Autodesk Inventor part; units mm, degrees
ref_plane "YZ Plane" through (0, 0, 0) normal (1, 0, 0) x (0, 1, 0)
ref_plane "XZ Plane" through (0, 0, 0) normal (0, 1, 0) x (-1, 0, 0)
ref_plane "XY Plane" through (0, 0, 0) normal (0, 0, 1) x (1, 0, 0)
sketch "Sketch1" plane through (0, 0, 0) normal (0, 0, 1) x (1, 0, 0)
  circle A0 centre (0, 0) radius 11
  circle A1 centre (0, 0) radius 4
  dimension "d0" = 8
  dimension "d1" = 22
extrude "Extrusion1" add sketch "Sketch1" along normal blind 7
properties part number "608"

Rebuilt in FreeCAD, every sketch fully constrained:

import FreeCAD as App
import Part
import Sketcher

V = App.Vector
Q = App.Units.Quantity

doc = App.newDocument("Part")
body = doc.addObject("PartDesign::Body", "Body")

# Sketch on XY plane
sketch1 = body.newObject("Sketcher::SketchObject", "Sketch")
sketch1.AttachmentSupport = (doc.getObject("XY_Plane"), [""])
sketch1.MapMode = "FlatFace"
sketch1.addGeometry([
    Part.Circle(V(0, 0, 0), V(0, 0, 1), 11),
    Part.Circle(V(0, 0, 0), V(0, 0, 1), 4),
], False)
sketch1.addConstraint([
    Sketcher.Constraint("Coincident", 0, 3, -1, 1),
    Sketcher.Constraint("Coincident", 1, 3, -1, 1),
    Sketcher.Constraint("Diameter", 0, Q("22 mm")),
    Sketcher.Constraint("Diameter", 1, Q("8 mm")),
])
pad1 = body.newObject("PartDesign::Pad", "Pad")
pad1.Profile = sketch1
pad1.Length = 7

doc.recompute()
